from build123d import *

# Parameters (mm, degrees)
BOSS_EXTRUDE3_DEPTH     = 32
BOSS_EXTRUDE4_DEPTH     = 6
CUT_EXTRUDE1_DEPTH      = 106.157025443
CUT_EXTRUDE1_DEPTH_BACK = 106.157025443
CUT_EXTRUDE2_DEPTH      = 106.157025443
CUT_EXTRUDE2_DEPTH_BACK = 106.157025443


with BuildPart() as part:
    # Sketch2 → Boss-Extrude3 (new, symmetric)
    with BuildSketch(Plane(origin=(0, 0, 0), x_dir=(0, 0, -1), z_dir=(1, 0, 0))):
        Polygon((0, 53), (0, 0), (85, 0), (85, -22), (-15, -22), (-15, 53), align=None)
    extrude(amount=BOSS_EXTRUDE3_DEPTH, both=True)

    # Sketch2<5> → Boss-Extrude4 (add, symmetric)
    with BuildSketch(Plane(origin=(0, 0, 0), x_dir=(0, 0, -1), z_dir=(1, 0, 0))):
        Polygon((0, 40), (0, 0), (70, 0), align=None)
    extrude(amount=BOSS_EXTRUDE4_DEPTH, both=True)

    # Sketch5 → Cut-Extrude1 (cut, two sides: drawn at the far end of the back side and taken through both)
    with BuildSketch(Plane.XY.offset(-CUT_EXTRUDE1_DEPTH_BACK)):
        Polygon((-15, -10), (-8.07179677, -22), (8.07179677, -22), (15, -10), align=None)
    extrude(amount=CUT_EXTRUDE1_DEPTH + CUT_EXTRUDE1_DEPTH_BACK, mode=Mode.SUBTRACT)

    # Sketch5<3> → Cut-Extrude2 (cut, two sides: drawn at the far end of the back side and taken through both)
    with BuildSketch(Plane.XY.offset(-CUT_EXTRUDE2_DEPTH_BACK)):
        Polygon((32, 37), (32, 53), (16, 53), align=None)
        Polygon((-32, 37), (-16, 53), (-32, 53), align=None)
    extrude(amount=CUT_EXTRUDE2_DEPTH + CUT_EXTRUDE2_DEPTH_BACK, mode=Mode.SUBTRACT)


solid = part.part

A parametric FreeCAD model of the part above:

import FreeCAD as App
import Part
import Sketcher
from FreeCAD import Vector
Q = App.Units.Quantity


def add_polygon(sketch, points):
    """Adds a closed chain of lines whose ends are joined by coincident constraints."""
    first, n = sketch.GeometryCount, len(points)
    for a, b in zip(points, points[1:] + points[:1]):
        sketch.addGeometry(Part.LineSegment(App.Vector(*a, 0), App.Vector(*b, 0)), False)
    for i in range(n):
        sketch.addConstraint(Sketcher.Constraint("Coincident", first + i, 2, first + (i + 1) % n, 1))

doc = App.newDocument("Part")
params = doc.addObject("Spreadsheet::Sheet", "Params")
for row, (alias, value) in enumerate([
    ("sketch1_width", "53 mm"),
    ("sketch1_width2", "75 mm"),
    ("sketch1_height", "15 mm"),
    ("sketch1_height2", "100 mm"),
    ("pad1_length", "64 mm"),
    ("sketch2_width", "40 mm"),
    ("sketch2_height", "70 mm"),
    ("pad2_length", "12 mm"),
    ("sketch3_width", "30 mm"),
    ("sketch4_width", "16 mm"),
], start=1):
    params.set(f"A{row}", alias)
    params.set(f"B{row}", "=" + value)
    params.setAlias(f"B{row}", alias)

body = doc.addObject("PartDesign::Body", "Body")

# Sketch on YZ plane
sketch1 = doc.addObject("Sketcher::SketchObject", "Sketch")
body.addObject(sketch1)
sketch1.AttachmentSupport = (doc.YZ_Plane, [""])
sketch1.MapMode = "FlatFace"
add_polygon(sketch1, [(0, 0), (53, 0), (53, 15), (-22, 15), (-22, -85), (0, -85)])  # lines 0-5
sketch1.addConstraint([
    Sketcher.Constraint("Horizontal", 0),
    Sketcher.Constraint("Vertical", 1),
    Sketcher.Constraint("Horizontal", 2),
    Sketcher.Constraint("Vertical", 3),
    Sketcher.Constraint("Horizontal", 4),
    Sketcher.Constraint("Vertical", 5),
    Sketcher.Constraint("Coincident", 5, 2, -1, 1),
    Sketcher.Constraint("DistanceX", 0, 1, 0, 2, Q("53 mm")),
    Sketcher.Constraint("DistanceX", 2, 2, 2, 1, Q("75 mm")),
    Sketcher.Constraint("DistanceY", 1, 1, 1, 2, Q("15 mm")),
    Sketcher.Constraint("DistanceY", 3, 2, 3, 1, Q("100 mm")),
])
sketch1.setExpression("Constraints[13]", "Params.sketch1_width")
sketch1.setExpression("Constraints[14]", "Params.sketch1_width2")
sketch1.setExpression("Constraints[15]", "Params.sketch1_height")
sketch1.setExpression("Constraints[16]", "Params.sketch1_height2")
pad1 = doc.addObject("PartDesign::Pad", "Pad")
body.addObject(pad1)
pad1.Profile = sketch1
pad1.setExpression("Length", "Params.pad1_length")
pad1.Midplane = True

# Sketch on YZ plane
sketch2 = doc.addObject("Sketcher::SketchObject", "Sketch001")
body.addObject(sketch2)
sketch2.AttachmentSupport = (doc.YZ_Plane, [""])
sketch2.MapMode = "FlatFace"
add_polygon(sketch2, [(40, 0), (0, 0), (0, -70)])  # lines 0-2
sketch2.addConstraint([
    Sketcher.Constraint("Horizontal", 0),
    Sketcher.Constraint("Vertical", 1),
    Sketcher.Constraint("Coincident", 0, 2, -1, 1),
    Sketcher.Constraint("DistanceX", 0, 2, 0, 1, Q("40 mm")),
    Sketcher.Constraint("DistanceY", 1, 2, 1, 1, Q("70 mm")),
])
sketch2.setExpression("Constraints[6]", "Params.sketch2_width")
sketch2.setExpression("Constraints[7]", "Params.sketch2_height")
pad2 = doc.addObject("PartDesign::Pad", "Pad001")
body.addObject(pad2)
pad2.Profile = sketch2
pad2.setExpression("Length", "Params.pad2_length")
pad2.Midplane = True

# Sketch on XY plane
sketch3 = doc.addObject("Sketcher::SketchObject", "Sketch002")
body.addObject(sketch3)
sketch3.AttachmentSupport = (doc.XY_Plane, [""])
sketch3.MapMode = "FlatFace"
add_polygon(sketch3, [(-15, -10), (-8, -22), (8, -22), (15, -10)])  # lines 0-3
sketch3.addConstraint([
    Sketcher.Constraint("Horizontal", 1),
    Sketcher.Constraint("Horizontal", 3),
    Sketcher.Constraint("Equal", 0, 2),
    Sketcher.Constraint("DistanceX", 3, 2, 3, 1, Q("30 mm")),
    Sketcher.Constraint("Angle", 0, Q("-60 deg")),
    Sketcher.Constraint("DistanceY", 0, 2, -1, 1, Q("22 mm")),
    Sketcher.Constraint("DistanceX", -1, 1, 2, 2, Q("15 mm")),
    Sketcher.Constraint("DistanceY", 2, 2, -1, 1, Q("10 mm")),
])
sketch3.setExpression("Constraints[7]", "Params.sketch3_width")
pocket1 = doc.addObject("PartDesign::Pocket", "Pocket")
body.addObject(pocket1)
pocket1.Profile = sketch3
pocket1.Type = "ThroughAll"
pocket1.Midplane = True

# Sketch on XY plane
sketch4 = doc.addObject("Sketcher::SketchObject", "Sketch003")
body.addObject(sketch4)
sketch4.AttachmentSupport = (doc.XY_Plane, [""])
sketch4.MapMode = "FlatFace"
add_polygon(sketch4, [(32, 37), (32, 53), (16, 53)])  # lines 0-2
add_polygon(sketch4, [(-32, 37), (-16, 53), (-32, 53)])  # lines 3-5
sketch4.addConstraint([
    Sketcher.Constraint("Vertical", 0),
    Sketcher.Constraint("Horizontal", 1),
    Sketcher.Constraint("Horizontal", 4),
    Sketcher.Constraint("Vertical", 5),
    Sketcher.Constraint("Symmetric", 1, 2, 3, 2, -2),
    Sketcher.Constraint("Symmetric", 2, 2, 5, 2, -2),
    Sketcher.Constraint("Perpendicular", 2, 3),
    Sketcher.Constraint("DistanceX", 1, 2, 1, 1, Q("16 mm")),
    Sketcher.Constraint("DistanceX", -1, 1, 0, 2, Q("32 mm")),
    Sketcher.Constraint("DistanceY", -1, 1, 0, 2, Q("53 mm")),
])
sketch4.setExpression("Constraints[13]", "Params.sketch4_width")
pocket2 = doc.addObject("PartDesign::Pocket", "Pocket001")
body.addObject(pocket2)
pocket2.Profile = sketch4
pocket2.Type = "ThroughAll"
pocket2.Midplane = True

doc.recompute()
